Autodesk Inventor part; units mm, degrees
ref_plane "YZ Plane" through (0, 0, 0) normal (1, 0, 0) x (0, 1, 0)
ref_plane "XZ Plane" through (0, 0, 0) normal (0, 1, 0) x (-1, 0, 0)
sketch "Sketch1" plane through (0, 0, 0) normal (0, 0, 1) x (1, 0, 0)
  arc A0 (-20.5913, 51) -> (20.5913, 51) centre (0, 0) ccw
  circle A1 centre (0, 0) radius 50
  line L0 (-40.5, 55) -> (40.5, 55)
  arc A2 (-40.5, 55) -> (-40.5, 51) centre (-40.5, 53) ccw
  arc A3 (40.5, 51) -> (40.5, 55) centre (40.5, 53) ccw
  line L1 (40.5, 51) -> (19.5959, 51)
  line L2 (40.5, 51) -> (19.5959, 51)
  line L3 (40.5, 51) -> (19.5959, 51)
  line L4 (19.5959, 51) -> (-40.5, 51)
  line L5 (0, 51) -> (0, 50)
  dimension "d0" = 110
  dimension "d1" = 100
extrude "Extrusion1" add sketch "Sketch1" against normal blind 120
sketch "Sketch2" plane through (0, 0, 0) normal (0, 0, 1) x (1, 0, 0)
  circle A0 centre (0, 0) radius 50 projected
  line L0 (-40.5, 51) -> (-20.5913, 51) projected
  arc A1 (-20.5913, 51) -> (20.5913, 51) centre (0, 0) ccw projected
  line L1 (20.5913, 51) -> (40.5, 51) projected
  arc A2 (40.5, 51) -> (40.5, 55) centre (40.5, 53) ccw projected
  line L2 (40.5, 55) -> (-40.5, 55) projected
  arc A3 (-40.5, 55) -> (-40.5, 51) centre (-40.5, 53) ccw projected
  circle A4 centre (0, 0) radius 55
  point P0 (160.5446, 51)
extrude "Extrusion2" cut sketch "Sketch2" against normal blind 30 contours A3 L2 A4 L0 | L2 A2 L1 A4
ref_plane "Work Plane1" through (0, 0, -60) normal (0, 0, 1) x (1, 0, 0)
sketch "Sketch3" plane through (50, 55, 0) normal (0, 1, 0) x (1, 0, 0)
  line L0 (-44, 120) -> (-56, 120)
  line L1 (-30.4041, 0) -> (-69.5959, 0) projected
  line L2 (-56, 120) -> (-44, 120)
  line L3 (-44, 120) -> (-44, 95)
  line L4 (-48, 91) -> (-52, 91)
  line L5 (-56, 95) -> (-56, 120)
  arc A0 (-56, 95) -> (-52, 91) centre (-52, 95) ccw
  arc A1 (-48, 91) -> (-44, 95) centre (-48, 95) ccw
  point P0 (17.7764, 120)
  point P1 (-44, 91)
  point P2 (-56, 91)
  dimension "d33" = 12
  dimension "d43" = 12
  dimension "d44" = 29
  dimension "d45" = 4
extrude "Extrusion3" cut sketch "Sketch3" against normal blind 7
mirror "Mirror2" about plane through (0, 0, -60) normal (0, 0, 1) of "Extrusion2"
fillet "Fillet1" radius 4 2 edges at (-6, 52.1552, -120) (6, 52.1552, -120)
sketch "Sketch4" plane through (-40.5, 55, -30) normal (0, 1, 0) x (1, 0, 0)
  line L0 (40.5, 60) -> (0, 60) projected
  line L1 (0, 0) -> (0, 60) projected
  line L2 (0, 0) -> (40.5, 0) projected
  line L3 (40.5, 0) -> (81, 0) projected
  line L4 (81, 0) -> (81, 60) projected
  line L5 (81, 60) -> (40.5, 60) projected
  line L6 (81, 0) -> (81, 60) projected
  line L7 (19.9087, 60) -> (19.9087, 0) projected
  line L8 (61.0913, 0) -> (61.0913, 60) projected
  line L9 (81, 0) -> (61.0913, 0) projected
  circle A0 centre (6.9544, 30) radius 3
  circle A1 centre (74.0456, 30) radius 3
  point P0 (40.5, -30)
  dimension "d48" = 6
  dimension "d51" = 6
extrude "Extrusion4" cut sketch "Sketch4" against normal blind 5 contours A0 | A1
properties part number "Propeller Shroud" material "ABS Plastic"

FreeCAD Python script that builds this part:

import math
import FreeCAD as App
import Part
import Sketcher


def edges_at(feature, points):
    """Names of the edges that pass closest to the given points."""
    edges = feature.Shape.Edges
    near = lambda p: min(range(len(edges)), key=lambda i: edges[i].distToShape(Part.Vertex(*p))[0])
    return sorted({f"Edge{near(p) + 1}" for p in points})

doc = App.newDocument("Part")
params = doc.addObject("Spreadsheet::Sheet", "Params")
for row, (alias, value) in enumerate([
    ("sketch1_diameter", "100 mm"),
    ("sketch1_radius", "55 mm"),
    ("sketch1_radius2", "2 mm"),
    ("sketch1_width", "81 mm"),
    ("pad1_length", "120 mm"),
    ("sketch2_radius", "2 mm"),
    ("sketch2_radius2", "55 mm"),
    ("sketch2_width", "40.5 mm"),
    ("pocket1_length", "30 mm"),
    ("sketch3_radius", "4 mm"),
    ("sketch3_width", "12 mm"),
    ("pocket2_length", "7 mm"),
    ("fillet_radius", "4 mm"),
    ("sketch4_diameter", "6 mm"),
    ("pocket3_length", "5 mm"),
], start=1):
    params.set(f"A{row}", alias)
    params.set(f"B{row}", "=" + value)
    params.setAlias(f"B{row}", alias)

body = doc.addObject("PartDesign::Body", "Body")

# Sketch on XY plane
sketch1 = body.newObject("Sketcher::SketchObject", "Sketch")
sketch1.AttachmentSupport = (doc.getObject("XY_Plane"), [""])
sketch1.MapMode = "FlatFace"
sketch1.addGeometry([
    Part.ArcOfCircle(Part.Circle(App.Vector(0, 0, 0), App.Vector(0, 0, 1), 55), math.radians(112), math.radians(428)),  # 0
    Part.LineSegment(App.Vector(20.6, 51, 0), App.Vector(40.5, 51, 0)),  # 1
    Part.ArcOfCircle(Part.Circle(App.Vector(40.5, 53, 0), App.Vector(0, 0, 1), 2), math.radians(-90), math.radians(90)),  # 2
    Part.LineSegment(App.Vector(40.5, 55, 0), App.Vector(-40.5, 55, 0)),  # 3
    Part.ArcOfCircle(Part.Circle(App.Vector(-40.5, 53, 0), App.Vector(0, 0, 1), 2), math.radians(90), math.radians(270)),  # 4
    Part.LineSegment(App.Vector(-40.5, 51, 0), App.Vector(-20.6, 51, 0)),  # 5
    Part.Circle(App.Vector(0, 0, 0), App.Vector(0, 0, 1), 50),  # 6
], False)
sketch1.addConstraint([
    Sketcher.Constraint("Coincident", 0, 2, 1, 1),
    Sketcher.Constraint("Tangent", 1, 2, 2, 1),
    Sketcher.Constraint("Tangent", 2, 2, 3, 1),
    Sketcher.Constraint("Tangent", 3, 2, 4, 1),
    Sketcher.Constraint("Tangent", 4, 2, 5, 1),
    Sketcher.Constraint("Coincident", 5, 2, 0, 1),
    Sketcher.Constraint("Horizontal", 1),
    Sketcher.Constraint("Horizontal", 3),
    Sketcher.Constraint("Horizontal", 5),
    Sketcher.Constraint("Coincident", 0, 3, -1, 1),
    Sketcher.Constraint("Coincident", 6, 3, -1, 1),
    Sketcher.Constraint("Equal", 2, 4),
    Sketcher.Constraint("Equal", 1, 5),
    Sketcher.Constraint("Diameter", 6, 100.0),
    Sketcher.Constraint("Radius", 0, 55.0),
    Sketcher.Constraint("Radius", 2, 2.0),
    Sketcher.Constraint("DistanceX", 3, 2, 3, 1, 81.0),
    Sketcher.Constraint("DistanceY", -1, 1, 2, 3, 53.0),
])
sketch1.setExpression("Constraints[13]", "Params.sketch1_diameter")
sketch1.setExpression("Constraints[14]", "Params.sketch1_radius")
sketch1.setExpression("Constraints[15]", "Params.sketch1_radius2")
sketch1.setExpression("Constraints[16]", "Params.sketch1_width")
pad1 = body.newObject("PartDesign::Pad", "Pad")
pad1.Profile = sketch1
pad1.setExpression("Length", "Params.pad1_length")
pad1.Reversed = True

# Sketch on XY plane
sketch2 = body.newObject("Sketcher::SketchObject", "Sketch001")
sketch2.AttachmentSupport = (doc.getObject("XY_Plane"), [""])
sketch2.MapMode = "FlatFace"
sketch2.addGeometry([
    Part.ArcOfCircle(Part.Circle(App.Vector(-40.5, 53, 0), App.Vector(0, 0, 1), 2), math.radians(90), math.radians(270)),  # 0
    Part.LineSegment(App.Vector(-40.5, 51, 0), App.Vector(-20.6, 51, 0)),  # 1
    Part.ArcOfCircle(Part.Circle(App.Vector(0, 0, 0), App.Vector(0, 0, 1), 55), math.radians(90), math.radians(112)),  # 2
    Part.LineSegment(App.Vector(0, 55, 0), App.Vector(-40.5, 55, 0)),  # 3
    Part.LineSegment(App.Vector(40.5, 55, 0), App.Vector(0, 55, 0)),  # 4
    Part.ArcOfCircle(Part.Circle(App.Vector(0, 0, 0), App.Vector(0, 0, 1), 55), math.radians(68), math.radians(90)),  # 5
    Part.LineSegment(App.Vector(20.6, 51, 0), App.Vector(40.5, 51, 0)),  # 6
    Part.ArcOfCircle(Part.Circle(App.Vector(40.5, 53, 0), App.Vector(0, 0, 1), 2), math.radians(-90), math.radians(90)),  # 7
], False)
sketch2.addConstraint([
    Sketcher.Constraint("Tangent", 0, 2, 1, 1),
    Sketcher.Constraint("Coincident", 1, 2, 2, 2),
    Sketcher.Constraint("Tangent", 2, 1, 3, 1),
    Sketcher.Constraint("Tangent", 3, 2, 0, 1),
    Sketcher.Constraint("Tangent", 4, 2, 5, 2),
    Sketcher.Constraint("Coincident", 5, 1, 6, 1),
    Sketcher.Constraint("Tangent", 6, 2, 7, 1),
    Sketcher.Constraint("Tangent", 7, 2, 4, 1),
    Sketcher.Constraint("Horizontal", 1),
    Sketcher.Constraint("Horizontal", 3),
    Sketcher.Constraint("Horizontal", 4),
    Sketcher.Constraint("Horizontal", 6),
    Sketcher.Constraint("Coincident", 2, 3, -1, 1),
    Sketcher.Constraint("Coincident", 5, 3, -1, 1),
    Sketcher.Constraint("Equal", 2, 5),
    Sketcher.Constraint("Equal", 0, 7),
    Sketcher.Constraint("Equal", 3, 4),
    Sketcher.Constraint("Radius", 0, 2.0),
    Sketcher.Constraint("Radius", 2, 55.0),
    Sketcher.Constraint("DistanceX", 3, 2, 3, 1, 40.5),
])
sketch2.setExpression("Constraints[17]", "Params.sketch2_radius")
sketch2.setExpression("Constraints[18]", "Params.sketch2_radius2")
sketch2.setExpression("Constraints[19]", "Params.sketch2_width")
pocket1 = body.newObject("PartDesign::Pocket", "Pocket")
pocket1.Profile = sketch2
pocket1.setExpression("Length", "Params.pocket1_length")

# Sketch on XZ plane
sketch3 = body.newObject("Sketcher::SketchObject", "Sketch002")
sketch3.AttachmentSupport = (doc.getObject("XZ_Plane"), [""])
sketch3.MapMode = "FlatFace"
sketch3.AttachmentOffset = App.Placement(App.Vector(0, 0, -55), App.Rotation())
sketch3.addGeometry([
    Part.LineSegment(App.Vector(6, -95, 0), App.Vector(6, -120, 0)),  # 0
    Part.LineSegment(App.Vector(6, -120, 0), App.Vector(-6, -120, 0)),  # 1
    Part.LineSegment(App.Vector(-6, -120, 0), App.Vector(-6, -95, 0)),  # 2
    Part.ArcOfCircle(Part.Circle(App.Vector(-2, -95, 0), App.Vector(0, 0, 1), 4), math.radians(90), math.radians(180)),  # 3
    Part.LineSegment(App.Vector(-2, -91, 0), App.Vector(2, -91, 0)),  # 4
    Part.ArcOfCircle(Part.Circle(App.Vector(2, -95, 0), App.Vector(0, 0, 1), 4), math.radians(0), math.radians(90)),  # 5
], False)
sketch3.addConstraint([
    Sketcher.Constraint("Coincident", 0, 2, 1, 1),
    Sketcher.Constraint("Coincident", 1, 2, 2, 1),
    Sketcher.Constraint("Tangent", 2, 2, 3, 2),
    Sketcher.Constraint("Tangent", 3, 1, 4, 1),
    Sketcher.Constraint("Tangent", 4, 2, 5, 2),
    Sketcher.Constraint("Tangent", 5, 1, 0, 1),
    Sketcher.Constraint("Vertical", 0),
    Sketcher.Constraint("Horizontal", 1),
    Sketcher.Constraint("Vertical", 2),
    Sketcher.Constraint("Horizontal", 4),
    Sketcher.Constraint("Equal", 3, 5),
    Sketcher.Constraint("Radius", 3, 4.0),
    Sketcher.Constraint("DistanceX", 1, 2, 1, 1, 12.0),
    Sketcher.Constraint("DistanceY", 1, 2, 3, 1, 29.0),
    Sketcher.Constraint("DistanceX", 3, 3, -1, 1, 2.0),
    Sketcher.Constraint("DistanceY", 3, 3, -1, 1, 95.0),
])
sketch3.setExpression("Constraints[11]", "Params.sketch3_radius")
sketch3.setExpression("Constraints[12]", "Params.sketch3_width")
pocket2 = body.newObject("PartDesign::Pocket", "Pocket001")
pocket2.Profile = sketch3
pocket2.setExpression("Length", "Params.pocket2_length")
pocket2.Reversed = True
doc.recompute()

datumplane = body.newObject("PartDesign::Plane", "DatumPlane")
datumplane.AttachmentSupport = (doc.getObject("XY_Plane"), [""])
datumplane.MapMode = "FlatFace"
datumplane.AttachmentOffset = App.Placement(App.Vector(0, 0, -60), App.Rotation())
mirrored = body.newObject("PartDesign::Mirrored", "Mirrored")
mirrored.Originals = [pocket1]
mirrored.MirrorPlane = (datumplane, [""])
body.Tip = mirrored
doc.recompute()

fillet = body.newObject("PartDesign::Fillet", "Fillet")
fillet.Base = (mirrored, edges_at(mirrored, [(-6, 52.155, -120), (6, 52.155, -120)]))
fillet.setExpression("Radius", "Params.fillet_radius")

# Sketch on XZ plane
sketch4 = body.newObject("Sketcher::SketchObject", "Sketch003")
sketch4.AttachmentSupport = (doc.getObject("XZ_Plane"), [""])
sketch4.MapMode = "FlatFace"
sketch4.AttachmentOffset = App.Placement(App.Vector(0, 0, -55), App.Rotation())
sketch4.addGeometry([
    Part.Circle(App.Vector(-33.5, -60, 0), App.Vector(0, 0, 1), 3),
    Part.Circle(App.Vector(33.5, -60, 0), App.Vector(0, 0, 1), 3),
], False)
sketch4.addConstraint([
    Sketcher.Constraint("Equal", 0, 1),
    Sketcher.Constraint("Symmetric", 0, 3, 1, 3, -2),
    Sketcher.Constraint("Diameter", 0, 6.0),
    Sketcher.Constraint("DistanceY", 0, 3, -1, 1, 60.0),
    Sketcher.Constraint("DistanceX", 0, 3, -1, 1, 33.5456),
])
sketch4.setExpression("Constraints[2]", "Params.sketch4_diameter")
pocket3 = body.newObject("PartDesign::Pocket", "Pocket002")
pocket3.Profile = sketch4
pocket3.setExpression("Length", "Params.pocket3_length")
pocket3.Reversed = True

doc.recompute()
